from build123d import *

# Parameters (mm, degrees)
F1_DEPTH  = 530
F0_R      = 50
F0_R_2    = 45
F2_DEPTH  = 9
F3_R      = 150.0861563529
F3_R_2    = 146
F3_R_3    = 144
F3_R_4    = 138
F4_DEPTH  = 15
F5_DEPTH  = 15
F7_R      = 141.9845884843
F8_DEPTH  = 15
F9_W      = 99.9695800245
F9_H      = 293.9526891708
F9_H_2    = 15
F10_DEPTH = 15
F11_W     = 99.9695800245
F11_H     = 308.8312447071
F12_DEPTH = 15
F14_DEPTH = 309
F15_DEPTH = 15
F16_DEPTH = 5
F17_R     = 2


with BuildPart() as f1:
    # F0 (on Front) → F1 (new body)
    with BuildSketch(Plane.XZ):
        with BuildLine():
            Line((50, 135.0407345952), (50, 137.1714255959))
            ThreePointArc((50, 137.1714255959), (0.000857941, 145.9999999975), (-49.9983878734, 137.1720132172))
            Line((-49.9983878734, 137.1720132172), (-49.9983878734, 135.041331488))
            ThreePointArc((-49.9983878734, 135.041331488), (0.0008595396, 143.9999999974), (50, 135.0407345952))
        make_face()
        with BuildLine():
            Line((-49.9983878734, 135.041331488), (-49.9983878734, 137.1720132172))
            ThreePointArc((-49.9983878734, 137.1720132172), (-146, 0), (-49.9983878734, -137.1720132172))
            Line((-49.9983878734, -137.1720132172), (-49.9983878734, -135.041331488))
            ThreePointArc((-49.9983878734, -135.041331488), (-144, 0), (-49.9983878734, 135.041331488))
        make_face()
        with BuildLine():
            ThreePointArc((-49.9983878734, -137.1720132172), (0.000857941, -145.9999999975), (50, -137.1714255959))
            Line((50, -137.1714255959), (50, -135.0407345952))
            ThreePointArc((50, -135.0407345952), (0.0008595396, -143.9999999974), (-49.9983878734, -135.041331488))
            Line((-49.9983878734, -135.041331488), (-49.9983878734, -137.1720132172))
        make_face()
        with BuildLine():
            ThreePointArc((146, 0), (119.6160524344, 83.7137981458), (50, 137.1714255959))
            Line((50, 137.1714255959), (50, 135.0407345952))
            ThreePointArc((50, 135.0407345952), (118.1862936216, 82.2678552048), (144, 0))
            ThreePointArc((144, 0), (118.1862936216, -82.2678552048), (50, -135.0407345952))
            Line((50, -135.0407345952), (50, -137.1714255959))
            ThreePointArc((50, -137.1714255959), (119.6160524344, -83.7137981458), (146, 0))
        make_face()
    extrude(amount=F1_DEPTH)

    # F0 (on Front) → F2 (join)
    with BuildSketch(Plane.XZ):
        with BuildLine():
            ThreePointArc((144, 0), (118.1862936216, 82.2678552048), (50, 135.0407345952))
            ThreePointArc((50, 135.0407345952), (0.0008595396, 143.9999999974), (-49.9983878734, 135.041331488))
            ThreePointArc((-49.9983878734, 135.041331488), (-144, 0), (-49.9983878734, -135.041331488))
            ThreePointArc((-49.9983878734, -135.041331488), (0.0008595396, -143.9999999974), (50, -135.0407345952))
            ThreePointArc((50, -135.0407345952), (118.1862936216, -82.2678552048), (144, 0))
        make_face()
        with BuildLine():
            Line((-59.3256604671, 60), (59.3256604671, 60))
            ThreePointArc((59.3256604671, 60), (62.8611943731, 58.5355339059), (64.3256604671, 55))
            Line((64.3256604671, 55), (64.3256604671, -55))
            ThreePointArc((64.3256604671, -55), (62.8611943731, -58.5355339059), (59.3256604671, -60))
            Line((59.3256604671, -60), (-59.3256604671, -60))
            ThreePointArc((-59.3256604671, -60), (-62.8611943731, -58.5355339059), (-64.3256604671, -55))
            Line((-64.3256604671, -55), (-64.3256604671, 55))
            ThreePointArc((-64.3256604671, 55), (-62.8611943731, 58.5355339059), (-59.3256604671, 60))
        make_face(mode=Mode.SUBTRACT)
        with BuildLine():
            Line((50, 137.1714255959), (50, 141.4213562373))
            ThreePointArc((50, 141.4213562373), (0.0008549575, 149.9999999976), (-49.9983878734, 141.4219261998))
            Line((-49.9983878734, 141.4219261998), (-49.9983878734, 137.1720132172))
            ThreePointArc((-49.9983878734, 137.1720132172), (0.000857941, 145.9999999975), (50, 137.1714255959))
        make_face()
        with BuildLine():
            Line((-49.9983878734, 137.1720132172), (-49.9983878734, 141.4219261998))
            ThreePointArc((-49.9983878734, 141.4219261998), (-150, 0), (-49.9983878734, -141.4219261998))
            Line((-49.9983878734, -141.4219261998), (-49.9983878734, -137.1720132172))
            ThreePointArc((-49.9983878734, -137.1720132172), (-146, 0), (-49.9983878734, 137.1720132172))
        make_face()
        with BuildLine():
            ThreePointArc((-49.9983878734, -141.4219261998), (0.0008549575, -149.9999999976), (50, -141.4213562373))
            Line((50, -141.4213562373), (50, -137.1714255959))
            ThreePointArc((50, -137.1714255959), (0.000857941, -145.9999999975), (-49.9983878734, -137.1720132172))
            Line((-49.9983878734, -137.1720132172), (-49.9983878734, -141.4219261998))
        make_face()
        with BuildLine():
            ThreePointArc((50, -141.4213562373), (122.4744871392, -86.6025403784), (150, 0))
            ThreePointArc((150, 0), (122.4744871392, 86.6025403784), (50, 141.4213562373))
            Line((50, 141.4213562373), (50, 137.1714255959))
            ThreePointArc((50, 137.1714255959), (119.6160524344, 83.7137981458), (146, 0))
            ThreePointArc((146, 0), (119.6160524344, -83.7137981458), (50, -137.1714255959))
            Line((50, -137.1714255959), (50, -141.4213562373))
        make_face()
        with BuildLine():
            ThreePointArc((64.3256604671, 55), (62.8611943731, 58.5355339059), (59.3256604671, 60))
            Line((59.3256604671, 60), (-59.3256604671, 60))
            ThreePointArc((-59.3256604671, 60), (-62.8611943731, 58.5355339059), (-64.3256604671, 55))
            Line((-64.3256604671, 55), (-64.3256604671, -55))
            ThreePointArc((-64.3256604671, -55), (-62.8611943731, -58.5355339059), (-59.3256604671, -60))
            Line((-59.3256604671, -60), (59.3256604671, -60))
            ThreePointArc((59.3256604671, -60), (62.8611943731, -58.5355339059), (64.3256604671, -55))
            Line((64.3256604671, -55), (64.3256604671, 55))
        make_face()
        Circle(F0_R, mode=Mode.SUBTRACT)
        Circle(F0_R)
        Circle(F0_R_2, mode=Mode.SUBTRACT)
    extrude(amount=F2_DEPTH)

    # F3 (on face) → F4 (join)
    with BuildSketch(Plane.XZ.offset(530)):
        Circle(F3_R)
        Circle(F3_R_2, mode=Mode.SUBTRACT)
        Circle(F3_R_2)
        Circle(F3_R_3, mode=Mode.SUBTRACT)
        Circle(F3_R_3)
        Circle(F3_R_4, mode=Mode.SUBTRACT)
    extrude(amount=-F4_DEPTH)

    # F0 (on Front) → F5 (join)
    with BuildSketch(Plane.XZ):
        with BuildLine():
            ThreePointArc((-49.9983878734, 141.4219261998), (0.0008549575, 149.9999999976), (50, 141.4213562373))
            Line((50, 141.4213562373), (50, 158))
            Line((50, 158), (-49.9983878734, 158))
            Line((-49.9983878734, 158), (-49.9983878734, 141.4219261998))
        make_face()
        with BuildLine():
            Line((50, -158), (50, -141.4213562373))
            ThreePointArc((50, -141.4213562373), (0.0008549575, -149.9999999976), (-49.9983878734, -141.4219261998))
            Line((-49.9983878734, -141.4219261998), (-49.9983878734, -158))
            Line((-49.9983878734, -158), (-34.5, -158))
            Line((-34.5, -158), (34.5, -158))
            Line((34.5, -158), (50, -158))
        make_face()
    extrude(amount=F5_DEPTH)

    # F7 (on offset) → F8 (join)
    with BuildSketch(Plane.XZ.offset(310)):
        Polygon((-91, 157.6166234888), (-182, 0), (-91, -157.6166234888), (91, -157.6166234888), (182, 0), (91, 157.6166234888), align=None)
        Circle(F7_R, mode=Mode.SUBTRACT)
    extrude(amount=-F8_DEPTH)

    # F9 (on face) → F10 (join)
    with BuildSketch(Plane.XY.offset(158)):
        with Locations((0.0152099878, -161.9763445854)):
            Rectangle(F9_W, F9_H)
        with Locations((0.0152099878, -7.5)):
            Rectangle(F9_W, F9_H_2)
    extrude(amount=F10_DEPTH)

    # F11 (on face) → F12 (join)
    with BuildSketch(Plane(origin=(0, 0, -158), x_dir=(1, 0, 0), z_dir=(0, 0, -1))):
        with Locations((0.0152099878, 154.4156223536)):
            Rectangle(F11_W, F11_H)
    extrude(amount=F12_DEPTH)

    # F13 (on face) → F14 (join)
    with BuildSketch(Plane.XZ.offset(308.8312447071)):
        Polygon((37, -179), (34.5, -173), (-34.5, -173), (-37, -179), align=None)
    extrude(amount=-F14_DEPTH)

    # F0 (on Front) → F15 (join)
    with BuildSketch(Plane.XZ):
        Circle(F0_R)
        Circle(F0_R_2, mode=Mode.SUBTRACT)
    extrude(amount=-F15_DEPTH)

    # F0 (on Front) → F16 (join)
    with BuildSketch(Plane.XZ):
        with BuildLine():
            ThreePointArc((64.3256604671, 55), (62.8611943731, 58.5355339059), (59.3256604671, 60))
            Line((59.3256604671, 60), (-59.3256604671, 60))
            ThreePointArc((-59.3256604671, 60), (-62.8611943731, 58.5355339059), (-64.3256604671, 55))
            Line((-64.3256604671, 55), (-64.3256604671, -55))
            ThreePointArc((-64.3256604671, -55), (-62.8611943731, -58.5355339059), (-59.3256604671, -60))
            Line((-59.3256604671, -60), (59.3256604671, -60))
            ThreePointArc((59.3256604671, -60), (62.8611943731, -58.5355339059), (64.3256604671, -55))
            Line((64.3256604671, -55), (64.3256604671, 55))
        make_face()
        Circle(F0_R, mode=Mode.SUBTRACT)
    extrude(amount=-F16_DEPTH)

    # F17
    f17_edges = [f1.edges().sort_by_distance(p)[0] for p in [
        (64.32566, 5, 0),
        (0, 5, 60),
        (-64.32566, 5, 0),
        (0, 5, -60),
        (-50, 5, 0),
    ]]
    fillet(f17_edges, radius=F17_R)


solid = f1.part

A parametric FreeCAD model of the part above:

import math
import FreeCAD as App
import Part
import Sketcher
from FreeCAD import Vector
Q = App.Units.Quantity


def edges_at(feature, points):
    """Names of the edges that pass closest to the given points."""
    edges = feature.Shape.Edges
    near = lambda p: min(range(len(edges)), key=lambda i: edges[i].distToShape(Part.Vertex(*p))[0])
    return sorted({f"Edge{near(p) + 1}" for p in points})

doc = App.newDocument("Part")
body = doc.addObject("PartDesign::Body", "Body")

sketch1 = body.newObject("Sketcher::SketchObject", "Sketch")
sketch1.AttachmentSupport = (doc.getObject("XZ_Plane"), [""])
sketch1.MapMode = "FlatFace"
sketch1.addGeometry([
    Part.ArcOfCircle(Part.Circle(Vector(0, 0, 0), Vector(0, 0, 1), 146), math.radians(70), math.radians(290)),
    Part.ArcOfCircle(Part.Circle(Vector(0, 0, 0), Vector(0, 0, 1), 146), math.radians(-70), math.radians(0)),
    Part.ArcOfCircle(Part.Circle(Vector(0, 0, 0), Vector(0, 0, 1), 146), math.radians(0), math.radians(70)),
    Part.Circle(Vector(0, 0, 0), Vector(0, 0, 1), 144),
], False)
sketch1.addConstraint([
    Sketcher.Constraint("Tangent", 0, 2, 1, 1),
    Sketcher.Constraint("Tangent", 1, 2, 2, 1),
    Sketcher.Constraint("Tangent", 2, 2, 0, 1),
    Sketcher.Constraint("Coincident", 0, 3, -1, 1),
    Sketcher.Constraint("Coincident", 3, 3, -1, 1),
    Sketcher.Constraint("PointOnObject", 1, 2, -1),
    Sketcher.Constraint("Vertical", 0, 2, 2, 2),
    Sketcher.Constraint("Diameter", 3, Q("288 mm")),
    Sketcher.Constraint("Radius", 0, Q("146 mm")),
    Sketcher.Constraint("DistanceX", -1, 1, 0, 2, Q("50 mm")),
])
pad1 = body.newObject("PartDesign::Pad", "Pad")
pad1.Profile = sketch1
pad1.Length = 530

sketch2 = body.newObject("Sketcher::SketchObject", "Sketch001")
sketch2.AttachmentSupport = (doc.getObject("XZ_Plane"), [""])
sketch2.MapMode = "FlatFace"
sketch2.addGeometry([
    Part.ArcOfCircle(Part.Circle(Vector(0, 0, 0), Vector(0, 0, 1), 144), math.radians(70), math.radians(250)),
    Part.ArcOfCircle(Part.Circle(Vector(0, 0, 0), Vector(0, 0, 1), 144), math.radians(-110), math.radians(-70)),
    Part.ArcOfCircle(Part.Circle(Vector(0, 0, 0), Vector(0, 0, 1), 144), math.radians(-70), math.radians(70)),
    Part.Circle(Vector(0, 0, 0), Vector(0, 0, 1), 45),
    Part.ArcOfCircle(Part.Circle(Vector(0, 0, 0), Vector(0, 0, 1), 150), math.radians(71), math.radians(109)),
    Part.ArcOfCircle(Part.Circle(Vector(0, 0, 0), Vector(0, 0, 1), 150), math.radians(109), math.radians(251)),
    Part.ArcOfCircle(Part.Circle(Vector(0, 0, 0), Vector(0, 0, 1), 150), math.radians(-109), math.radians(-71)),
    Part.ArcOfCircle(Part.Circle(Vector(0, 0, 0), Vector(0, 0, 1), 150), math.radians(-71), math.radians(71)),
    Part.ArcOfCircle(Part.Circle(Vector(0, 0, 0), Vector(0, 0, 1), 146), math.radians(70), math.radians(290)),
    Part.ArcOfCircle(Part.Circle(Vector(0, 0, 0), Vector(0, 0, 1), 146), math.radians(0), math.radians(70)),
    Part.ArcOfCircle(Part.Circle(Vector(0, 0, 0), Vector(0, 0, 1), 146), math.radians(-70), math.radians(0)),
], False)
sketch2.addConstraint([
    Sketcher.Constraint("Tangent", 0, 2, 1, 1),
    Sketcher.Constraint("Tangent", 1, 2, 2, 1),
    Sketcher.Constraint("Tangent", 2, 2, 0, 1),
    Sketcher.Constraint("Tangent", 4, 2, 5, 1),
    Sketcher.Constraint("Tangent", 5, 2, 6, 1),
    Sketcher.Constraint("Tangent", 6, 2, 7, 1),
    Sketcher.Constraint("Tangent", 7, 2, 4, 1),
    Sketcher.Constraint("Tangent", 8, 1, 9, 2),
    Sketcher.Constraint("Tangent", 9, 1, 10, 2),
    Sketcher.Constraint("Tangent", 10, 1, 8, 2),
    Sketcher.Constraint("Coincident", 0, 3, -1, 1),
    Sketcher.Constraint("Coincident", 3, 3, -1, 1),
    Sketcher.Constraint("Coincident", 4, 3, -1, 1),
    Sketcher.Constraint("Coincident", 8, 3, -1, 1),
    Sketcher.Constraint("Equal", 4, 5),
    Sketcher.Constraint("PointOnObject", 9, 1, -1),
    Sketcher.Constraint("Vertical", 1, 2, 2, 2),
    Sketcher.Constraint("Vertical", 0, 2, 4, 2),
    Sketcher.Constraint("Vertical", 4, 2, 5, 2),
    Sketcher.Constraint("Vertical", 2, 2, 6, 2),
    Sketcher.Constraint("Vertical", 6, 2, 7, 2),
    Sketcher.Constraint("Vertical", 7, 2, 8, 1),
    Sketcher.Constraint("Vertical", 8, 1, 10, 1),
    Sketcher.Constraint("Diameter", 3, Q("90 mm")),
    Sketcher.Constraint("Radius", 0, Q("144 mm")),
    Sketcher.Constraint("Radius", 4, Q("150 mm")),
    Sketcher.Constraint("Radius", 8, Q("146 mm")),
    Sketcher.Constraint("DistanceX", -1, 1, 1, 2, Q("50 mm")),
    Sketcher.Constraint("DistanceY", 8, 1, 4, 2, Q("4.250501 mm")),
])
pad2 = body.newObject("PartDesign::Pad", "Pad001")
pad2.Profile = sketch2
pad2.Length = 9

sketch3 = body.newObject("Sketcher::SketchObject", "Sketch002")
sketch3.AttachmentSupport = (doc.getObject("XZ_Plane"), [""])
sketch3.MapMode = "FlatFace"
sketch3.AttachmentOffset = App.Placement(Vector(0, 0, 530), App.Rotation())
sketch3.addGeometry([
    Part.Circle(Vector(0, 0, 0), Vector(0, 0, 1), 150),
    Part.Circle(Vector(0, 0, 0), Vector(0, 0, 1), 138),
], False)
sketch3.addConstraint([
    Sketcher.Constraint("Coincident", 0, 3, -1, 1),
    Sketcher.Constraint("Coincident", 1, 3, -1, 1),
    Sketcher.Constraint("Diameter", 1, Q("276 mm")),
    Sketcher.Constraint("Diameter", 0, Q("300.172313 mm")),
])
pad3 = body.newObject("PartDesign::Pad", "Pad002")
pad3.Profile = sketch3
pad3.Length = 15
pad3.Reversed = True

sketch4 = body.newObject("Sketcher::SketchObject", "Sketch003")
sketch4.AttachmentSupport = (doc.getObject("XZ_Plane"), [""])
sketch4.MapMode = "FlatFace"
sketch4.addGeometry([
    Part.ArcOfCircle(Part.Circle(Vector(0, 0, 0), Vector(0, 0, 1), 150), math.radians(71), math.radians(109)),
    Part.LineSegment(Vector(50, 141, 0), Vector(50, 158, 0)),
    Part.LineSegment(Vector(50, 158, 0), Vector(-50, 158, 0)),
    Part.LineSegment(Vector(-50, 158, 0), Vector(-50, 141, 0)),
    Part.LineSegment(Vector(50, -158, 0), Vector(50, -141, 0)),
    Part.ArcOfCircle(Part.Circle(Vector(0, 0, 0), Vector(0, 0, 1), 150), math.radians(-109), math.radians(-71)),
    Part.LineSegment(Vector(-50, -141, 0), Vector(-50, -158, 0)),
    Part.LineSegment(Vector(-50, -158, 0), Vector(50, -158, 0)),
], False)
sketch4.addConstraint([
    Sketcher.Constraint("Coincident", 0, 1, 1, 1),
    Sketcher.Constraint("Coincident", 1, 2, 2, 1),
    Sketcher.Constraint("Coincident", 2, 2, 3, 1),
    Sketcher.Constraint("Coincident", 3, 2, 0, 2),
    Sketcher.Constraint("Coincident", 4, 2, 5, 2),
    Sketcher.Constraint("Coincident", 5, 1, 6, 1),
    Sketcher.Constraint("Coincident", 6, 2, 7, 1),
    Sketcher.Constraint("Coincident", 7, 2, 4, 1),
    Sketcher.Constraint("Vertical", 1),
    Sketcher.Constraint("Horizontal", 2),
    Sketcher.Constraint("Vertical", 3),
    Sketcher.Constraint("Vertical", 4),
    Sketcher.Constraint("Vertical", 6),
    Sketcher.Constraint("Horizontal", 7),
    Sketcher.Constraint("Coincident", 0, 3, -1, 1),
    Sketcher.Constraint("Coincident", 5, 3, -1, 1),
    Sketcher.Constraint("Equal", 0, 5),
    Sketcher.Constraint("Symmetric", 2, 2, 6, 2, -1),
    Sketcher.Constraint("Vertical", 1, 2, 4, 2),
    Sketcher.Constraint("Radius", 0, Q("150 mm")),
    Sketcher.Constraint("DistanceX", -1, 1, 0, 1, Q("50 mm")),
    Sketcher.Constraint("DistanceY", -1, 1, 1, 2, Q("158 mm")),
    Sketcher.Constraint("DistanceX", 2, 2, 2, 1, Q("99.998388 mm")),
])
pad4 = body.newObject("PartDesign::Pad", "Pad003")
pad4.Profile = sketch4
pad4.Length = 15

sketch5 = body.newObject("Sketcher::SketchObject", "Sketch004")
sketch5.AttachmentSupport = (doc.getObject("XZ_Plane"), [""])
sketch5.MapMode = "FlatFace"
sketch5.AttachmentOffset = App.Placement(Vector(0, 0, 310), App.Rotation())
sketch5.addGeometry([
    Part.LineSegment(Vector(-91, 158, 0), Vector(-182, 0, 0)),
    Part.LineSegment(Vector(-182, 0, 0), Vector(-91, -158, 0)),
    Part.LineSegment(Vector(-91, -158, 0), Vector(91, -158, 0)),
    Part.LineSegment(Vector(91, -158, 0), Vector(182, 0, 0)),
    Part.LineSegment(Vector(182, 0, 0), Vector(91, 158, 0)),
    Part.LineSegment(Vector(91, 158, 0), Vector(-91, 158, 0)),
    Part.Circle(Vector(0, 0, 0), Vector(0, 0, 1), 142),
], False)
sketch5.addConstraint([
    Sketcher.Constraint("Coincident", 0, 2, 1, 1),
    Sketcher.Constraint("Coincident", 1, 2, 2, 1),
    Sketcher.Constraint("Coincident", 2, 2, 3, 1),
    Sketcher.Constraint("Coincident", 3, 2, 4, 1),
    Sketcher.Constraint("Coincident", 4, 2, 5, 1),
    Sketcher.Constraint("Coincident", 5, 2, 0, 1),
    Sketcher.Constraint("Horizontal", 2),
    Sketcher.Constraint("Horizontal", 5),
    Sketcher.Constraint("Coincident", 6, 3, -1, 1),
    Sketcher.Constraint("Symmetric", 0, 2, 3, 2, -1, 1),
    Sketcher.Constraint("Symmetric", 1, 2, 4, 2, -1, 1),
    Sketcher.Constraint("PointOnObject", 0, 2, -1),
    Sketcher.Constraint("Parallel", 0, 3),
    Sketcher.Constraint("Vertical", 2, 2, 4, 2),
    Sketcher.Constraint("DistanceX", 2, 1, 2, 2, Q("182 mm")),
    Sketcher.Constraint("Angle", 0, Q("-120 deg")),
    Sketcher.Constraint("Distance", 0, Q("182 mm")),
    Sketcher.Constraint("Diameter", 6, Q("283.969177 mm")),
])
pad5 = body.newObject("PartDesign::Pad", "Pad004")
pad5.Profile = sketch5
pad5.Length = 15
pad5.Reversed = True

sketch6 = body.newObject("Sketcher::SketchObject", "Sketch005")
sketch6.AttachmentSupport = (doc.getObject("XY_Plane"), [""])
sketch6.MapMode = "FlatFace"
sketch6.AttachmentOffset = App.Placement(Vector(0, 0, 158), App.Rotation())
sketch6.addGeometry([
    Part.LineSegment(Vector(-50, -309, 0), Vector(50, -309, 0)),
    Part.LineSegment(Vector(50, -309, 0), Vector(50, 0, 0)),
    Part.LineSegment(Vector(50, 0, 0), Vector(-50, 0, 0)),
    Part.LineSegment(Vector(-50, 0, 0), Vector(-50, -309, 0)),
], False)
sketch6.addConstraint([
    Sketcher.Constraint("Coincident", 0, 2, 1, 1),
    Sketcher.Constraint("Coincident", 1, 2, 2, 1),
    Sketcher.Constraint("Coincident", 2, 2, 3, 1),
    Sketcher.Constraint("Coincident", 3, 2, 0, 1),
    Sketcher.Constraint("Horizontal", 0),
    Sketcher.Constraint("Vertical", 1),
    Sketcher.Constraint("Horizontal", 2),
    Sketcher.Constraint("Vertical", 3),
    Sketcher.Constraint("PointOnObject", 1, 2, -1),
    Sketcher.Constraint("DistanceX", -1, 1, 0, 2, Q("50 mm")),
    Sketcher.Constraint("DistanceX", 0, 1, 0, 2, Q("99.96958 mm")),
    Sketcher.Constraint("DistanceY", 1, 1, 1, 2, Q("308.952689 mm")),
])
pad6 = body.newObject("PartDesign::Pad", "Pad005")
pad6.Profile = sketch6
pad6.Length = 15

sketch7 = body.newObject("Sketcher::SketchObject", "Sketch006")
sketch7.AttachmentSupport = (doc.getObject("XY_Plane"), [""])
sketch7.MapMode = "FlatFace"
sketch7.AttachmentOffset = App.Placement(Vector(0, 0, -158), App.Rotation())
sketch7.addGeometry([
    Part.LineSegment(Vector(-50, -309, 0), Vector(-50, 0, 0)),
    Part.LineSegment(Vector(-50, 0, 0), Vector(50, 0, 0)),
    Part.LineSegment(Vector(50, 0, 0), Vector(50, -309, 0)),
    Part.LineSegment(Vector(50, -309, 0), Vector(-50, -309, 0)),
], False)
sketch7.addConstraint([
    Sketcher.Constraint("Coincident", 0, 2, 1, 1),
    Sketcher.Constraint("Coincident", 1, 2, 2, 1),
    Sketcher.Constraint("Coincident", 2, 2, 3, 1),
    Sketcher.Constraint("Coincident", 3, 2, 0, 1),
    Sketcher.Constraint("Vertical", 0),
    Sketcher.Constraint("Horizontal", 1),
    Sketcher.Constraint("Vertical", 2),
    Sketcher.Constraint("Horizontal", 3),
    Sketcher.Constraint("PointOnObject", 0, 2, -1),
    Sketcher.Constraint("DistanceX", -1, 1, 1, 2, Q("50 mm")),
    Sketcher.Constraint("DistanceX", 1, 1, 1, 2, Q("99.96958 mm")),
    Sketcher.Constraint("DistanceY", 0, 1, 0, 2, Q("308.831245 mm")),
])
pad7 = body.newObject("PartDesign::Pad", "Pad006")
pad7.Profile = sketch7
pad7.Length = 15
pad7.Reversed = True

sketch8 = body.newObject("Sketcher::SketchObject", "Sketch007")
sketch8.AttachmentSupport = (doc.getObject("XZ_Plane"), [""])
sketch8.MapMode = "FlatFace"
sketch8.AttachmentOffset = App.Placement(Vector(0, 0, 308.831245), App.Rotation())
sketch8.addGeometry([
    Part.LineSegment(Vector(37, -179, 0), Vector(34, -173, 0)),
    Part.LineSegment(Vector(34, -173, 0), Vector(-34, -173, 0)),
    Part.LineSegment(Vector(-34, -173, 0), Vector(-37, -179, 0)),
    Part.LineSegment(Vector(-37, -179, 0), Vector(37, -179, 0)),
], False)
sketch8.addConstraint([
    Sketcher.Constraint("Coincident", 0, 2, 1, 1),
    Sketcher.Constraint("Coincident", 1, 2, 2, 1),
    Sketcher.Constraint("Coincident", 2, 2, 3, 1),
    Sketcher.Constraint("Coincident", 3, 2, 0, 1),
    Sketcher.Constraint("Horizontal", 1),
    Sketcher.Constraint("Horizontal", 3),
    Sketcher.Constraint("Equal", 0, 2),
    Sketcher.Constraint("DistanceX", 1, 2, 1, 1, Q("69 mm")),
    Sketcher.Constraint("DistanceX", 3, 1, 3, 2, Q("74 mm")),
    Sketcher.Constraint("DistanceY", 0, 2, -1, 1, Q("173 mm")),
    Sketcher.Constraint("DistanceX", 2, 2, -1, 1, Q("37 mm")),
    Sketcher.Constraint("DistanceY", 2, 2, -1, 1, Q("179 mm")),
])
pad8 = body.newObject("PartDesign::Pad", "Pad007")
pad8.Profile = sketch8
pad8.Length = 309
pad8.Reversed = True

sketch9 = body.newObject("Sketcher::SketchObject", "Sketch008")
sketch9.AttachmentSupport = (doc.getObject("XZ_Plane"), [""])
sketch9.MapMode = "FlatFace"
sketch9.addGeometry([
    Part.Circle(Vector(0, 0, 0), Vector(0, 0, 1), 50),
    Part.Circle(Vector(0, 0, 0), Vector(0, 0, 1), 45),
], False)
sketch9.addConstraint([
    Sketcher.Constraint("Coincident", 0, 3, -1, 1),
    Sketcher.Constraint("Coincident", 1, 3, -1, 1),
    Sketcher.Constraint("Diameter", 0, Q("100 mm")),
    Sketcher.Constraint("Diameter", 1, Q("90 mm")),
])
pad9 = body.newObject("PartDesign::Pad", "Pad008")
pad9.Profile = sketch9
pad9.Length = 15
pad9.Reversed = True

sketch10 = body.newObject("Sketcher::SketchObject", "Sketch009")
sketch10.AttachmentSupport = (doc.getObject("XZ_Plane"), [""])
sketch10.MapMode = "FlatFace"
sketch10.addGeometry([
    Part.ArcOfCircle(Part.Circle(Vector(59, 55, 0), Vector(0, 0, 1), 5), math.radians(0), math.radians(90)),
    Part.LineSegment(Vector(59, 60, 0), Vector(-59, 60, 0)),
    Part.ArcOfCircle(Part.Circle(Vector(-59, 55, 0), Vector(0, 0, 1), 5), math.radians(90), math.radians(180)),
    Part.LineSegment(Vector(-64, 55, 0), Vector(-64, -55, 0)),
    Part.ArcOfCircle(Part.Circle(Vector(-59, -55, 0), Vector(0, 0, 1), 5), math.radians(180), math.radians(270)),
    Part.LineSegment(Vector(-59, -60, 0), Vector(59, -60, 0)),
    Part.ArcOfCircle(Part.Circle(Vector(59, -55, 0), Vector(0, 0, 1), 5), math.radians(-90), math.radians(0)),
    Part.LineSegment(Vector(64, -55, 0), Vector(64, 55, 0)),
    Part.Circle(Vector(0, 0, 0), Vector(0, 0, 1), 50),
], False)
sketch10.addConstraint([
    Sketcher.Constraint("Tangent", 0, 2, 1, 1),
    Sketcher.Constraint("Tangent", 1, 2, 2, 1),
    Sketcher.Constraint("Tangent", 2, 2, 3, 1),
    Sketcher.Constraint("Tangent", 3, 2, 4, 1),
    Sketcher.Constraint("Tangent", 4, 2, 5, 1),
    Sketcher.Constraint("Tangent", 5, 2, 6, 1),
    Sketcher.Constraint("Tangent", 6, 2, 7, 1),
    Sketcher.Constraint("Tangent", 7, 2, 0, 1),
    Sketcher.Constraint("Horizontal", 1),
    Sketcher.Constraint("Vertical", 3),
    Sketcher.Constraint("Horizontal", 5),
    Sketcher.Constraint("Vertical", 7),
    Sketcher.Constraint("Coincident", 8, 3, -1, 1),
    Sketcher.Constraint("Equal", 0, 2),
    Sketcher.Constraint("Equal", 2, 4),
    Sketcher.Constraint("Equal", 4, 6),
    Sketcher.Constraint("Symmetric", 0, 3, 4, 3, -1, 1),
    Sketcher.Constraint("Diameter", 8, Q("100 mm")),
    Sketcher.Constraint("Radius", 0, Q("5 mm")),
    Sketcher.Constraint("DistanceY", 3, 2, 3, 1, Q("110 mm")),
    Sketcher.Constraint("DistanceX", 1, 2, 1, 1, Q("118.651321 mm")),
])
pad10 = body.newObject("PartDesign::Pad", "Pad009")
pad10.Profile = sketch10
pad10.Length = 5
pad10.Reversed = True
doc.recompute()

fillet = body.newObject("PartDesign::Fillet", "Fillet")
fillet.Base = (pad10, edges_at(pad10, [
    (64.326, 5, 0),
    (0, 5, 60),
    (-64.326, 5, 0),
    (0, 5, -60),
    (-50, 5, 0),
]))
fillet.Radius = 2

doc.recompute()
